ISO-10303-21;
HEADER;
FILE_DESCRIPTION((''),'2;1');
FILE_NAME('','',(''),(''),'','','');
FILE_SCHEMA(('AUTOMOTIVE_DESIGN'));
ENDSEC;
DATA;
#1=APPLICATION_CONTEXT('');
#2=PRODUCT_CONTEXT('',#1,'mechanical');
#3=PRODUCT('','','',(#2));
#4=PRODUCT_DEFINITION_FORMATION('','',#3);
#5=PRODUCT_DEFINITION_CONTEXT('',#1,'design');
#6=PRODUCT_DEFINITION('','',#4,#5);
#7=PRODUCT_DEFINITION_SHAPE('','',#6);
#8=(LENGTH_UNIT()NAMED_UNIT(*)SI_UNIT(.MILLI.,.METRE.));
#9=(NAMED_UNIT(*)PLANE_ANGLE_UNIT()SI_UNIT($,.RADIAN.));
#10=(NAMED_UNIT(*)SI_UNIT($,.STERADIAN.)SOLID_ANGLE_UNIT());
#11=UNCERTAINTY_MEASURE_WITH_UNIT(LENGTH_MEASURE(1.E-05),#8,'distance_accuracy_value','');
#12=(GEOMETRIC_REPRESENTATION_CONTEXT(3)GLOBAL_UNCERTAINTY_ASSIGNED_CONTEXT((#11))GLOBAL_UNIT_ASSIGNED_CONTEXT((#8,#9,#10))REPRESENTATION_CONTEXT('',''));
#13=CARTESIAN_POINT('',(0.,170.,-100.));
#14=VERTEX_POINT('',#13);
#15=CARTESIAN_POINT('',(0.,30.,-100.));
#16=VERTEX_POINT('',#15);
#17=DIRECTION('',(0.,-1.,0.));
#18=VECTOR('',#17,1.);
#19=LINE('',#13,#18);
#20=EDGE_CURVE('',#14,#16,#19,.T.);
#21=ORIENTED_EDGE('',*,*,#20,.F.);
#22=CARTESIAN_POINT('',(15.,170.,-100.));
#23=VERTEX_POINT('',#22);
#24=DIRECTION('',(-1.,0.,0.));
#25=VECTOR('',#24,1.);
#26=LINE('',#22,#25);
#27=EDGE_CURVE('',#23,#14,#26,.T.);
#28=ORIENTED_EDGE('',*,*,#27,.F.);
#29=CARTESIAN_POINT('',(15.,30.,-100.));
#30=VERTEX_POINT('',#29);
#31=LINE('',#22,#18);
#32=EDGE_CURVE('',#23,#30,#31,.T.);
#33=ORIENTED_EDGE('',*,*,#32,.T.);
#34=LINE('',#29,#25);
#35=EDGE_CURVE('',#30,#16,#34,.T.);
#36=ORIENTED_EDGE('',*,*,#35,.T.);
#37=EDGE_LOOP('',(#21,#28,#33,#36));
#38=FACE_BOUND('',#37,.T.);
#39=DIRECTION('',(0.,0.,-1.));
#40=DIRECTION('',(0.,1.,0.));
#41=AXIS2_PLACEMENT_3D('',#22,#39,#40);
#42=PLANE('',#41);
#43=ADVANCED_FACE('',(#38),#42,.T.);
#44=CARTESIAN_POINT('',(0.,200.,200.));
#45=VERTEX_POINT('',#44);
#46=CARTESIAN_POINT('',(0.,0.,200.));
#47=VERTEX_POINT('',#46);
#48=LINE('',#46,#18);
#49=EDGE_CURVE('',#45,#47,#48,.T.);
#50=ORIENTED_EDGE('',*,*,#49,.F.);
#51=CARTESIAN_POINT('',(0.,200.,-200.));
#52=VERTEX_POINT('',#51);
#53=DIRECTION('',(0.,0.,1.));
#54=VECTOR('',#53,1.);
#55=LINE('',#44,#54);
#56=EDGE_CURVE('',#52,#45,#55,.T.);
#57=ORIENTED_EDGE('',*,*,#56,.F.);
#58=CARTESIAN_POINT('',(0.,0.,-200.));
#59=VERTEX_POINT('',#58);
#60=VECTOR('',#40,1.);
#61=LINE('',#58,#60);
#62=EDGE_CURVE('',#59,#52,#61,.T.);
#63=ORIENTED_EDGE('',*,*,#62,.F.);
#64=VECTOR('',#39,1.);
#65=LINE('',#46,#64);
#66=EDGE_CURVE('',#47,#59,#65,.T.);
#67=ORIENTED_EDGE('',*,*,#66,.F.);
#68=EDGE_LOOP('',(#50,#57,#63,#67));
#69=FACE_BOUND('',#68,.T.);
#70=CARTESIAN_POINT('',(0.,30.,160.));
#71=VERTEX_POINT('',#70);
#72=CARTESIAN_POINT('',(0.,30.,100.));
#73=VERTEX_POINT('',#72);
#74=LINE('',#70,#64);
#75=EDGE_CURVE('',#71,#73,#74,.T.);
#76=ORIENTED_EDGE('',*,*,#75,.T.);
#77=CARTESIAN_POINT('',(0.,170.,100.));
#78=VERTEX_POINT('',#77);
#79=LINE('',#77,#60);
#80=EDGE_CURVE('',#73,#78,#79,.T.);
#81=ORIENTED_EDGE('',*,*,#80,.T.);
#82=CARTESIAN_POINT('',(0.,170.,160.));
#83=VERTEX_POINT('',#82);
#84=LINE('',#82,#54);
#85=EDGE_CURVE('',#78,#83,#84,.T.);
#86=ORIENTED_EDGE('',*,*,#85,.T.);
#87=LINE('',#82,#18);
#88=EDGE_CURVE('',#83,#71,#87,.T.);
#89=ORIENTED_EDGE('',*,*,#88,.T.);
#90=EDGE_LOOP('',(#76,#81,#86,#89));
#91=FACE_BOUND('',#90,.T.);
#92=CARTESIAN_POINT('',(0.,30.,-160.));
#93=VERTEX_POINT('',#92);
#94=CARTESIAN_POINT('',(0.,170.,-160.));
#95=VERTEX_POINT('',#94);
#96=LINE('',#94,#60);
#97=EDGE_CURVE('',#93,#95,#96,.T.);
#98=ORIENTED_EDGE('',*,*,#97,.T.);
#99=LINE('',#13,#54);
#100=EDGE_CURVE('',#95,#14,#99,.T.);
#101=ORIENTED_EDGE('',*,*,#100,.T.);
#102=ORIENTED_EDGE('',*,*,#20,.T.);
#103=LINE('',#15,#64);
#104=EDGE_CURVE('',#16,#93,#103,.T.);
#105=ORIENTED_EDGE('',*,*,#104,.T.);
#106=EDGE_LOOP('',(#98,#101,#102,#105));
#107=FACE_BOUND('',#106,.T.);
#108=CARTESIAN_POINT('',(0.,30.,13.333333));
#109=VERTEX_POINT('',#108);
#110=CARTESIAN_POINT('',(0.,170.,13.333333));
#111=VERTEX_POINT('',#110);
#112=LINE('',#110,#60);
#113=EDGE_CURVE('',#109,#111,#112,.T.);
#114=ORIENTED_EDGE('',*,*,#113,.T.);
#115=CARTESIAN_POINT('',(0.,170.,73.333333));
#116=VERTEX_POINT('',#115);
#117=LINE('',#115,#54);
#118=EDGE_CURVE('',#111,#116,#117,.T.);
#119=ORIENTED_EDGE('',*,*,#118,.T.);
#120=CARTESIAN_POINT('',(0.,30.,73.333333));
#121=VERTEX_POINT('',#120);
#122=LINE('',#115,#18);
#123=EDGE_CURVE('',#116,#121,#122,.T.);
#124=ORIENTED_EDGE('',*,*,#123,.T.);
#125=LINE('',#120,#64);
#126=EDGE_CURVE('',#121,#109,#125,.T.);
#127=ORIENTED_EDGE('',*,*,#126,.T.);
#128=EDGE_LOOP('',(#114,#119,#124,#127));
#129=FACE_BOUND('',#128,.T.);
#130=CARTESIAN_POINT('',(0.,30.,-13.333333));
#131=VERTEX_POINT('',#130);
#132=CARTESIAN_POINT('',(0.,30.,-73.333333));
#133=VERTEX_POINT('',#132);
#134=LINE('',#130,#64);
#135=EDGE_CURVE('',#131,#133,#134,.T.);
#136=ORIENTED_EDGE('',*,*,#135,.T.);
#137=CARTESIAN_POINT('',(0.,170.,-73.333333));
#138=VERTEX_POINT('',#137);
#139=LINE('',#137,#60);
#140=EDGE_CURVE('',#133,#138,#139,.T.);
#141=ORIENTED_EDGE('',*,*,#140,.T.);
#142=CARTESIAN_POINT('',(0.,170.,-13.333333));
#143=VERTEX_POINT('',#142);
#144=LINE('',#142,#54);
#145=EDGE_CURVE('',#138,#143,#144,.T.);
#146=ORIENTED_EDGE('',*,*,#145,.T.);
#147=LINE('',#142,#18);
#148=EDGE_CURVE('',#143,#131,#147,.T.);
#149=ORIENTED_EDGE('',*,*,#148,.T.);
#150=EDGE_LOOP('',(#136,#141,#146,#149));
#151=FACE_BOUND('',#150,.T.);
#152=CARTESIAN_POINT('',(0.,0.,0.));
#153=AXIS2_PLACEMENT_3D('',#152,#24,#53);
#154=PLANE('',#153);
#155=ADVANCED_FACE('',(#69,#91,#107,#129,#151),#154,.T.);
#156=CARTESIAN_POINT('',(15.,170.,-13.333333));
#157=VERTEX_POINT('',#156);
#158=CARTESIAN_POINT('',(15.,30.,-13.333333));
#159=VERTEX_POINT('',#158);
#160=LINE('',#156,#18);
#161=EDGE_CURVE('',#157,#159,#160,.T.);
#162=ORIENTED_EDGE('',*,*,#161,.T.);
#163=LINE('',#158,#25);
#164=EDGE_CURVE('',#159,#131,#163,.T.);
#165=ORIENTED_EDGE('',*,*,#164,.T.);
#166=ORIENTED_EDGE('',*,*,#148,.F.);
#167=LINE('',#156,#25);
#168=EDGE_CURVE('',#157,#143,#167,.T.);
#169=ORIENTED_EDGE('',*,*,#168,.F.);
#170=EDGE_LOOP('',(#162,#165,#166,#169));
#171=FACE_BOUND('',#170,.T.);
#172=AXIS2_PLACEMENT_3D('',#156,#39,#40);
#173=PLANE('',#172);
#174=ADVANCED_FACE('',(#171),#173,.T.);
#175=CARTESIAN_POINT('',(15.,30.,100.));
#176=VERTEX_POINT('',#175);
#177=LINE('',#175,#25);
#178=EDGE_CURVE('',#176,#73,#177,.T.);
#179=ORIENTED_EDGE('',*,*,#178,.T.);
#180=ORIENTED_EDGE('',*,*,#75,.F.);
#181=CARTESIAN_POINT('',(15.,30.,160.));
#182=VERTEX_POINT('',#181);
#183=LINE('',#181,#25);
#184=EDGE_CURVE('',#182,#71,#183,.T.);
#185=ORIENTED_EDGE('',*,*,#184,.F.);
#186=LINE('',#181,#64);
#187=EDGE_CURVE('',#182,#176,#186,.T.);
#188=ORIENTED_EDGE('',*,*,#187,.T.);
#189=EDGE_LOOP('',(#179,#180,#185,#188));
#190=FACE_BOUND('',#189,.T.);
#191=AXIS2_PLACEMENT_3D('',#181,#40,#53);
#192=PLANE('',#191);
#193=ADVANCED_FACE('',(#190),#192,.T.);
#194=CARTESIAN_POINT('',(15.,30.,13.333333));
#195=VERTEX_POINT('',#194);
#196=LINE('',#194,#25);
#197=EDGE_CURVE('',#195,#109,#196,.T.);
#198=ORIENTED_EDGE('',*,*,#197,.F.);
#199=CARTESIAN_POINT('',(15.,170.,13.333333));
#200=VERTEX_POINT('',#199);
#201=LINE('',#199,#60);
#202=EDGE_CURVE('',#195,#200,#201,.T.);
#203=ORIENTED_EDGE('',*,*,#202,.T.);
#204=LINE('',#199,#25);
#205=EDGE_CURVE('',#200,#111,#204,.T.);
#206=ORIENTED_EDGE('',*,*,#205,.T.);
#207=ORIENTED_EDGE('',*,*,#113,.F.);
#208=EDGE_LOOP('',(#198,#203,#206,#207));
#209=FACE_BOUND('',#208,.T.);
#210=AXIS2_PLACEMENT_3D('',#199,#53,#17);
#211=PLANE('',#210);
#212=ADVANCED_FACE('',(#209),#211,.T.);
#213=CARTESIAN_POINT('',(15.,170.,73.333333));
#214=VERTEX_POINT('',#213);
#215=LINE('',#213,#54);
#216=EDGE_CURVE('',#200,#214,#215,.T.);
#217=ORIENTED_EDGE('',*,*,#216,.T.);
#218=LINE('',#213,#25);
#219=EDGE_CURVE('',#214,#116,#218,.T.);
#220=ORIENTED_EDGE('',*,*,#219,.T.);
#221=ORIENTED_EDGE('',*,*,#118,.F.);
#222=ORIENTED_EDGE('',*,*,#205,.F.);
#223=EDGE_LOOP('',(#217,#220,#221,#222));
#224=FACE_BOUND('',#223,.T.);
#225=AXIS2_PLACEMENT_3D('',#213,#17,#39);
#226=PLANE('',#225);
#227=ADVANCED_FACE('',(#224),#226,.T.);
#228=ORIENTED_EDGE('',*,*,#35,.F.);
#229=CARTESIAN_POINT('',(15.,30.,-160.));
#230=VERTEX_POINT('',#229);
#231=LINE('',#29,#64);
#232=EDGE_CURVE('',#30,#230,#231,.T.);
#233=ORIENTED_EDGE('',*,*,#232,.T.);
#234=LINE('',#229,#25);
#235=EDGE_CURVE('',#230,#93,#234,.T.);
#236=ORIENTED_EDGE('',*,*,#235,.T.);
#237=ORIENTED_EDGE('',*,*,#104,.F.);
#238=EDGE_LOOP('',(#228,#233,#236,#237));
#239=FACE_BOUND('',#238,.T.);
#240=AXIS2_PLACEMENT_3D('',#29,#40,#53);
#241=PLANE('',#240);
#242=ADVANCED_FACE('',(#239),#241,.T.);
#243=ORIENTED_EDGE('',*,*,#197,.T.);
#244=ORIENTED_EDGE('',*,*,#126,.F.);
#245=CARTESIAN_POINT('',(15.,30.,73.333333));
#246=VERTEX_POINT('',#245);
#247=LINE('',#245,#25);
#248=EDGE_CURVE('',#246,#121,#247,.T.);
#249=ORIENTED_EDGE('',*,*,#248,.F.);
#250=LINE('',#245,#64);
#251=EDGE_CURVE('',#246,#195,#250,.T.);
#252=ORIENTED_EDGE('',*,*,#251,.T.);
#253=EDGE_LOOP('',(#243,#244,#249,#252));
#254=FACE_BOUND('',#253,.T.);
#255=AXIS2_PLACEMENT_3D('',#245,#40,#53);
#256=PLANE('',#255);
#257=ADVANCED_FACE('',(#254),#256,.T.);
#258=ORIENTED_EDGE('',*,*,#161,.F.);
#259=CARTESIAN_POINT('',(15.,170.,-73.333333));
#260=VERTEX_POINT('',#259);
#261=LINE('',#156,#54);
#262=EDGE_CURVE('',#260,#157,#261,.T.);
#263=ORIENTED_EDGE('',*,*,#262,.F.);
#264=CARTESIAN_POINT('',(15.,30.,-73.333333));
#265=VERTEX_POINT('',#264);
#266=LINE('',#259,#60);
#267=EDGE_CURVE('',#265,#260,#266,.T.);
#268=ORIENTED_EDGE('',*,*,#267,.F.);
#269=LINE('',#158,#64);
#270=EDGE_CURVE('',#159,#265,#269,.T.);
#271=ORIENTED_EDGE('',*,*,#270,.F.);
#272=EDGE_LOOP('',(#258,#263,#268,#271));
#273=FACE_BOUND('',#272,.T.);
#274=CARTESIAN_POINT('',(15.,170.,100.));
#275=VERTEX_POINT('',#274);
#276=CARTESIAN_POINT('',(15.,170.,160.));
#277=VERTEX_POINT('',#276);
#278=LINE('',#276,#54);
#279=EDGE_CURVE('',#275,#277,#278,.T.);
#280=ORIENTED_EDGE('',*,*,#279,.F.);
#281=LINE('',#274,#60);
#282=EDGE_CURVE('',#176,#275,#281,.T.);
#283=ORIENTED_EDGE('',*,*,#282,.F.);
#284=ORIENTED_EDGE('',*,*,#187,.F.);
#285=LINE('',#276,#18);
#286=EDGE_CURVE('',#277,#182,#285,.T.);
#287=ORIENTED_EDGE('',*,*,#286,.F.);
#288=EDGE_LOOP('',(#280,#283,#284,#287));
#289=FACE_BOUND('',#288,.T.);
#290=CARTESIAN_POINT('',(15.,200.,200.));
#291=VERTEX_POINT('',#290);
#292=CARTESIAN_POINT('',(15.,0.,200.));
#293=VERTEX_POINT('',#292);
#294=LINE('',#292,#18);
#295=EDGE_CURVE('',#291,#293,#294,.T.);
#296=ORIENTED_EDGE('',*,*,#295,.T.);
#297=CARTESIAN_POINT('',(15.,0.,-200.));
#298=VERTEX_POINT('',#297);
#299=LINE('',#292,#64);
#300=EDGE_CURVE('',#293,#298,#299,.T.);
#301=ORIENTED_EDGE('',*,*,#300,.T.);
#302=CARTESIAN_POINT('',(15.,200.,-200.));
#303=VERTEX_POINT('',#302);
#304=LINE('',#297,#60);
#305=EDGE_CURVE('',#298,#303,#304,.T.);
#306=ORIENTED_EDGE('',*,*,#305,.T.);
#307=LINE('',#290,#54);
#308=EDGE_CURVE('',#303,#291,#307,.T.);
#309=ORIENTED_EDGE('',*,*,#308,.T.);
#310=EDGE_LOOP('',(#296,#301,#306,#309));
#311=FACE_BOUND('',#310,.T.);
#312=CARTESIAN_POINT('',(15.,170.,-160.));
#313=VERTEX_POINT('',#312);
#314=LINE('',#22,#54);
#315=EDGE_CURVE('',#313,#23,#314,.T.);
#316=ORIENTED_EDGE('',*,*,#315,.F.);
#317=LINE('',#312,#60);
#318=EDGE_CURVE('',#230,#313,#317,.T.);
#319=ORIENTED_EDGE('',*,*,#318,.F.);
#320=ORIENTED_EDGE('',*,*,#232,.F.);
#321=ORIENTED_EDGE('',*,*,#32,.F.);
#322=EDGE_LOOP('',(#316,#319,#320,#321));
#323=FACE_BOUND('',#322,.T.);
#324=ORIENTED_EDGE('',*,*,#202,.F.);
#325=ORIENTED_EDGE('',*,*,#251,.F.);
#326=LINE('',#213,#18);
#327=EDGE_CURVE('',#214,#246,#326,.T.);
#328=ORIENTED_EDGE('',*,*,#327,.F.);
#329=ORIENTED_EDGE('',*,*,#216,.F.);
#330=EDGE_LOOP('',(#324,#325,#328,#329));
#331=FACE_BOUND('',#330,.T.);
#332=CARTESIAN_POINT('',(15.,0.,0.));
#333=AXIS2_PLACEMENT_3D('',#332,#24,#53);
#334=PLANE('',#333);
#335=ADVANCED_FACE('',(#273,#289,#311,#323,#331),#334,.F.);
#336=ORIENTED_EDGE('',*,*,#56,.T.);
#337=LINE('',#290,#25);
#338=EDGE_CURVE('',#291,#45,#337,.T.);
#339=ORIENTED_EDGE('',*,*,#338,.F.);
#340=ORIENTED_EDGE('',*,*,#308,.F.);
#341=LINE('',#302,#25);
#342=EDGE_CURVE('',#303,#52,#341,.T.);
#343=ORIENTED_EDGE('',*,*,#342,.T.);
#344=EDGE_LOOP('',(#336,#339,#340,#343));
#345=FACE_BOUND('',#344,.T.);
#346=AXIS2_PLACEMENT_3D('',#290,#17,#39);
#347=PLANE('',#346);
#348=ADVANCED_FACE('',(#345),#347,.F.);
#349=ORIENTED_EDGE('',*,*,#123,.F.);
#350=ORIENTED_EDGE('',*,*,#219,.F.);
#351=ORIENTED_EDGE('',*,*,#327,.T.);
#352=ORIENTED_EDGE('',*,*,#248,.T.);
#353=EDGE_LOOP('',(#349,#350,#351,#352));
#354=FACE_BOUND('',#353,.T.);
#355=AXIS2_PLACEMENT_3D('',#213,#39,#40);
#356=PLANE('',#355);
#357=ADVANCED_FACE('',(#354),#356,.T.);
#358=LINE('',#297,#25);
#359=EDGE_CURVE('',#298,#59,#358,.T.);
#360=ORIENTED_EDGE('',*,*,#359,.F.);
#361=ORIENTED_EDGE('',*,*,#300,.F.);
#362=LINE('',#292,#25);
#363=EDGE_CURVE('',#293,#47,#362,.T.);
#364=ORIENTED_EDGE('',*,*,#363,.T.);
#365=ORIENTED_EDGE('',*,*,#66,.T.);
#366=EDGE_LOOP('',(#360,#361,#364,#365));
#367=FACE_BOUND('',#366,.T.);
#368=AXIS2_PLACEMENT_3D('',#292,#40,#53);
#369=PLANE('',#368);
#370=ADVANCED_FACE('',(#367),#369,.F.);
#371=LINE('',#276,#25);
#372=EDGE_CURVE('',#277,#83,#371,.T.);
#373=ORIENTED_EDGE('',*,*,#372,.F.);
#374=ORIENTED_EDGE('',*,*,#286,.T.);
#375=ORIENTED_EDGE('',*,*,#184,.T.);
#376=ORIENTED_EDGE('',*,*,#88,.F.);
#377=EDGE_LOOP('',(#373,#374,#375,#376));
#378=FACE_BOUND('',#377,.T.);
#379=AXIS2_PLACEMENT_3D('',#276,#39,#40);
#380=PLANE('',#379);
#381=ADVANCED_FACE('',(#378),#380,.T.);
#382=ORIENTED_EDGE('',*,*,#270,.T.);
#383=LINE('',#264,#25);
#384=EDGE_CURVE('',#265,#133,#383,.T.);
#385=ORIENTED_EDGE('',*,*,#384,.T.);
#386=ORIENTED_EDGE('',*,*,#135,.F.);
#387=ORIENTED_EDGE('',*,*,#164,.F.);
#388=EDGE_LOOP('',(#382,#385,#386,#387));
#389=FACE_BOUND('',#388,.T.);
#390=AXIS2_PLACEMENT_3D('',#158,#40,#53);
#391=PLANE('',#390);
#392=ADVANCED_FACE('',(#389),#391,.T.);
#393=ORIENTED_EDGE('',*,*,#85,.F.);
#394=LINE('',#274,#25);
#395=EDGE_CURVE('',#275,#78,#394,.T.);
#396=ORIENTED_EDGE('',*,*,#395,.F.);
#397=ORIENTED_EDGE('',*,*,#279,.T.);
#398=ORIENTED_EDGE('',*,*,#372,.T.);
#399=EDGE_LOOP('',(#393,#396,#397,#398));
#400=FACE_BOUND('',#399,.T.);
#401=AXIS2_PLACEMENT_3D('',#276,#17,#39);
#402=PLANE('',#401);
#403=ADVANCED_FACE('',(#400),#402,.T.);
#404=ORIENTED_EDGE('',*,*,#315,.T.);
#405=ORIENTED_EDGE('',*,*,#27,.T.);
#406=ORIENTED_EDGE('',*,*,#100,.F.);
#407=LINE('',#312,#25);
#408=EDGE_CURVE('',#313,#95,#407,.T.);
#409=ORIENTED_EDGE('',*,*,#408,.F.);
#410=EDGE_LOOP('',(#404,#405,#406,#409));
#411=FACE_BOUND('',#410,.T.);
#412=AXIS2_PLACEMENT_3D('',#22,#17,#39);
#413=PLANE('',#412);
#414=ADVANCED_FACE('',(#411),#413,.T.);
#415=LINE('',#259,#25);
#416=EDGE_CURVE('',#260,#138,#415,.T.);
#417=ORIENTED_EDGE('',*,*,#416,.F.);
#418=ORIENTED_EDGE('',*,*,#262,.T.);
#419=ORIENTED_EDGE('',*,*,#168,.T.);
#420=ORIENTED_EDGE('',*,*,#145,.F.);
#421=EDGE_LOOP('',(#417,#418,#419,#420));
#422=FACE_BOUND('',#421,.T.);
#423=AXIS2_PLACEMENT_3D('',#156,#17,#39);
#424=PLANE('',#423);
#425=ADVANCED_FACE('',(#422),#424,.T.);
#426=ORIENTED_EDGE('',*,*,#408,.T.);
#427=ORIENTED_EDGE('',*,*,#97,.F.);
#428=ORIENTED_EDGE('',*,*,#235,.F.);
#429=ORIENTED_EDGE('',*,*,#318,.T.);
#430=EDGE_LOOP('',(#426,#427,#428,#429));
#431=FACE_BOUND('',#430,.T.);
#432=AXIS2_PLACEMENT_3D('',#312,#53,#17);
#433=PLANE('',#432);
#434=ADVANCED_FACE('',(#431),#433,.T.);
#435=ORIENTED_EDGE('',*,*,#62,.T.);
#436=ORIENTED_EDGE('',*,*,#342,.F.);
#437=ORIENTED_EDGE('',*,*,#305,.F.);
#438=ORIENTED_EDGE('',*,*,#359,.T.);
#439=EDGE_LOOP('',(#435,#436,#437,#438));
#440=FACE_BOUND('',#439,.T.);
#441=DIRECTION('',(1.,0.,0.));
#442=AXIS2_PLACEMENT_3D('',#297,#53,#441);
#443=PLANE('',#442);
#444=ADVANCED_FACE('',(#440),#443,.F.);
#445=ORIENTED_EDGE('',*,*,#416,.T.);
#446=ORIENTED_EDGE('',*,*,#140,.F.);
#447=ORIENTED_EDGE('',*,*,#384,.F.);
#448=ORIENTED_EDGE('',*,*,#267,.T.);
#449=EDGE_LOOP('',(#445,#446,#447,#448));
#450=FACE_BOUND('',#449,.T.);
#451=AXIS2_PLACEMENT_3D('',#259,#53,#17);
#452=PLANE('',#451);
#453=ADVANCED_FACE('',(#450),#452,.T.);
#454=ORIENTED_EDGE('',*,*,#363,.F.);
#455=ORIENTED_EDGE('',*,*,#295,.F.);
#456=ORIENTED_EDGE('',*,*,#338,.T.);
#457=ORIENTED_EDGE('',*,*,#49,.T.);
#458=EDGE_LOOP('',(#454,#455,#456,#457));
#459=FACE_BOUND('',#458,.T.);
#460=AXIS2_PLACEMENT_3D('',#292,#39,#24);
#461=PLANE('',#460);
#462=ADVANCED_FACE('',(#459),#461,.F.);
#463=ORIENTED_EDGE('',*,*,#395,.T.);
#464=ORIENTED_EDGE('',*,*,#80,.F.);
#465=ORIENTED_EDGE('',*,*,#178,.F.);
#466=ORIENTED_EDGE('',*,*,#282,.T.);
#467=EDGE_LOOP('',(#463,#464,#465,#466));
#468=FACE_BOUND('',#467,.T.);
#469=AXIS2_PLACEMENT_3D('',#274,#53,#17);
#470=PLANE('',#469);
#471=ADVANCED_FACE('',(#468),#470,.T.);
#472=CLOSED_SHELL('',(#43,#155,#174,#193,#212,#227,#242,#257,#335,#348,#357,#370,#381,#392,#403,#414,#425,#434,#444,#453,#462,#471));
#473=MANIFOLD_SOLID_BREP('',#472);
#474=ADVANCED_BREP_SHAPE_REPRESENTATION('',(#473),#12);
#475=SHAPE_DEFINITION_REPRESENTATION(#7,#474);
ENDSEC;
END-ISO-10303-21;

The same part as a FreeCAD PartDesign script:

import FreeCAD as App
import Part
import Sketcher
from FreeCAD import Vector
Q = App.Units.Quantity


def add_polygon(sketch, points):
    """Adds a closed chain of lines whose ends are joined by coincident constraints."""
    first, n = sketch.GeometryCount, len(points)
    for a, b in zip(points, points[1:] + points[:1]):
        sketch.addGeometry(Part.LineSegment(App.Vector(*a, 0), App.Vector(*b, 0)), False)
    for i in range(n):
        sketch.addConstraint(Sketcher.Constraint("Coincident", first + i, 2, first + (i + 1) % n, 1))

doc = App.newDocument("Part")
body = doc.addObject("PartDesign::Body", "Body")

# Sketch on YZ plane
sketch1 = body.newObject("Sketcher::SketchObject", "Sketch")
sketch1.AttachmentSupport = (doc.getObject("YZ_Plane"), [""])
sketch1.MapMode = "FlatFace"
add_polygon(sketch1, [(200, 200), (0, 200), (0, -200), (200, -200)])  # lines 0-3
add_polygon(sketch1, [(30, 100), (30, 160), (170, 160), (170, 100)])  # lines 4-7
add_polygon(sketch1, [(30, 13), (30, 73), (170, 73), (170, 13)])  # lines 8-11
add_polygon(sketch1, [(30, -73), (30, -13), (170, -13), (170, -73)])  # lines 12-15
add_polygon(sketch1, [(30, -160), (30, -100), (170, -100), (170, -160)])  # lines 16-19
sketch1.addConstraint([
    Sketcher.Constraint("Horizontal", 0),
    Sketcher.Constraint("Vertical", 1),
    Sketcher.Constraint("Horizontal", 2),
    Sketcher.Constraint("Vertical", 3),
    Sketcher.Constraint("Vertical", 4),
    Sketcher.Constraint("Horizontal", 5),
    Sketcher.Constraint("Vertical", 6),
    Sketcher.Constraint("Horizontal", 7),
    Sketcher.Constraint("Vertical", 8),
    Sketcher.Constraint("Horizontal", 9),
    Sketcher.Constraint("Vertical", 10),
    Sketcher.Constraint("Horizontal", 11),
    Sketcher.Constraint("Vertical", 12),
    Sketcher.Constraint("Horizontal", 13),
    Sketcher.Constraint("Vertical", 14),
    Sketcher.Constraint("Horizontal", 15),
    Sketcher.Constraint("Vertical", 16),
    Sketcher.Constraint("Horizontal", 17),
    Sketcher.Constraint("Vertical", 18),
    Sketcher.Constraint("Horizontal", 19),
    Sketcher.Constraint("Symmetric", 0, 2, 1, 2, -1, 1),
    Sketcher.Constraint("Symmetric", 11, 2, 12, 2, -1),
    Sketcher.Constraint("Symmetric", 9, 2, 14, 2, -1),
    Sketcher.Constraint("Symmetric", 7, 2, 16, 2, -1),
    Sketcher.Constraint("Symmetric", 5, 2, 18, 2, -1),
    Sketcher.Constraint("Vertical", 7, 2, 8, 2),
    Sketcher.Constraint("Vertical", 6, 2, 9, 2),
    Sketcher.Constraint("Equal", 6, 8),
    Sketcher.Constraint("DistanceX", 0, 2, 0, 1, Q("200 mm")),
    Sketcher.Constraint("DistanceX", 5, 1, 5, 2, Q("140 mm")),
    Sketcher.Constraint("DistanceY", 1, 2, 1, 1, Q("400 mm")),
    Sketcher.Constraint("DistanceY", 4, 1, 4, 2, Q("60 mm")),
    Sketcher.Constraint("DistanceX", -1, 1, 4, 2, Q("30 mm")),
    Sketcher.Constraint("DistanceY", -1, 1, 4, 2, Q("160 mm")),
    Sketcher.Constraint("DistanceY", -1, 1, 8, 2, Q("73.333333 mm")),
])
pad1 = body.newObject("PartDesign::Pad", "Pad")
pad1.Profile = sketch1
pad1.Length = 15

doc.recompute()
